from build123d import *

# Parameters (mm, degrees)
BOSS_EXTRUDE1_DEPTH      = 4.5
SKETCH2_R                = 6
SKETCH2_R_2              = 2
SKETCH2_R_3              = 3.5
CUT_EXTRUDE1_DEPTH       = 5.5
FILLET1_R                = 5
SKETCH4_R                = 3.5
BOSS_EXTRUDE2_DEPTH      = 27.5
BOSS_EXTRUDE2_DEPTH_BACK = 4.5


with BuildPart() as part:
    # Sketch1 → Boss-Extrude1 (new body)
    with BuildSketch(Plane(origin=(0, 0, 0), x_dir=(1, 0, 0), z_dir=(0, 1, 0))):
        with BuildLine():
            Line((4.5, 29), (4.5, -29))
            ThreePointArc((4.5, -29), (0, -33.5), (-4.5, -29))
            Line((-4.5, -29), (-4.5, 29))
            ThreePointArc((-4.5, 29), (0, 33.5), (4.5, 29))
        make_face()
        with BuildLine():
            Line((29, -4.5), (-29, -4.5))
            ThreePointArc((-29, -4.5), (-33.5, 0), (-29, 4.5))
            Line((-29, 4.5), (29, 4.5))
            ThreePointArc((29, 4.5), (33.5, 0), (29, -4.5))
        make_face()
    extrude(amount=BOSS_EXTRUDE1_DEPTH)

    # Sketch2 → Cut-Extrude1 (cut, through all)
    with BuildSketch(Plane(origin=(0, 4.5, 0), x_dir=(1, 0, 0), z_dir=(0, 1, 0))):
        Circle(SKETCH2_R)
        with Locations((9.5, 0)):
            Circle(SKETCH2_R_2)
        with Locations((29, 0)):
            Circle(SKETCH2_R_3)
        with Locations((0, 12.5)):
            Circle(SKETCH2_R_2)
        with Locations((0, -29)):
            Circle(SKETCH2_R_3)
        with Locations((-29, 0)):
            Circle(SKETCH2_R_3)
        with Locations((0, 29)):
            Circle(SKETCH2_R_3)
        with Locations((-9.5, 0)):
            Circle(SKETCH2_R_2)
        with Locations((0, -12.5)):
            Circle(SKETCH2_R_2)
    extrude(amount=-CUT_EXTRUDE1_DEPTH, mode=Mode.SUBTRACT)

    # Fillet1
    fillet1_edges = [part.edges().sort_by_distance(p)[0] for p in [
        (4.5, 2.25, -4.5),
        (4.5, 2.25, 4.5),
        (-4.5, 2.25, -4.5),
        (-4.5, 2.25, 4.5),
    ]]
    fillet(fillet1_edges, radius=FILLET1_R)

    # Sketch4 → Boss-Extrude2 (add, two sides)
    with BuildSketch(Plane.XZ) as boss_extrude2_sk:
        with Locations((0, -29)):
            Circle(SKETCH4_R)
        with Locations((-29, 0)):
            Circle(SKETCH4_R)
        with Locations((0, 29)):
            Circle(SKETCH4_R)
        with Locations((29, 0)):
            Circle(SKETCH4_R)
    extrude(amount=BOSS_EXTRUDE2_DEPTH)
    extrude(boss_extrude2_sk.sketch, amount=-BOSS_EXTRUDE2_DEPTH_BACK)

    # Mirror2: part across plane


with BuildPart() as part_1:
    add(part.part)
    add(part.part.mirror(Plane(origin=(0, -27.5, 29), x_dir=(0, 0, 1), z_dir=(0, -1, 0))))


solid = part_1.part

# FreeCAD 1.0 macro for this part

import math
import FreeCAD as App
import Part
import Sketcher

V = App.Vector


def edges_at(feature, points):
    """Names of the edges that pass closest to the given points."""
    edges = feature.Shape.Edges
    near = lambda p: min(range(len(edges)), key=lambda i: edges[i].distToShape(Part.Vertex(*p))[0])
    return sorted({f"Edge{near(p) + 1}" for p in points})

doc = App.newDocument("Part")
body = doc.addObject("PartDesign::Body", "Body")

sketch1 = body.newObject("Sketcher::SketchObject", "Sketch")
sketch1.AttachmentSupport = (doc.getObject("XZ_Plane"), [""])
sketch1.MapMode = "FlatFace"
sketch1.addGeometry(Part.ArcOfCircle(Part.Circle(V(0, -29, 0), V(0, 0, 1), 4.5), math.radians(180), math.radians(360)), False)
sketch1.addGeometry(Part.LineSegment(V(-4.5, -29, 0), V(-4.5, -4.5, 0)), False)
sketch1.addGeometry(Part.LineSegment(V(-4.5, -4.5, 0), V(-29, -4.5, 0)), False)
sketch1.addGeometry(Part.ArcOfCircle(Part.Circle(V(-29, 0, 0), V(0, 0, 1), 4.5), math.radians(90), math.radians(270)), False)
sketch1.addGeometry(Part.LineSegment(V(-29, 4.5, 0), V(-4.5, 4.5, 0)), False)
sketch1.addGeometry(Part.LineSegment(V(-4.5, 4.5, 0), V(-4.5, 29, 0)), False)
sketch1.addGeometry(Part.ArcOfCircle(Part.Circle(V(0, 29, 0), V(0, 0, 1), 4.5), math.radians(0), math.radians(180)), False)
sketch1.addGeometry(Part.LineSegment(V(4.5, 29, 0), V(4.5, 4.5, 0)), False)
sketch1.addGeometry(Part.LineSegment(V(4.5, 4.5, 0), V(29, 4.5, 0)), False)
sketch1.addGeometry(Part.ArcOfCircle(Part.Circle(V(29, 0, 0), V(0, 0, 1), 4.5), math.radians(-90), math.radians(90)), False)
sketch1.addGeometry(Part.LineSegment(V(29, -4.5, 0), V(4.5, -4.5, 0)), False)
sketch1.addGeometry(Part.LineSegment(V(4.5, -4.5, 0), V(4.5, -29, 0)), False)
sketch1.addConstraint(Sketcher.Constraint("Tangent", 0, 1, 1, 1))
sketch1.addConstraint(Sketcher.Constraint("Coincident", 1, 2, 2, 1))
sketch1.addConstraint(Sketcher.Constraint("Tangent", 2, 2, 3, 2))
sketch1.addConstraint(Sketcher.Constraint("Tangent", 3, 1, 4, 1))
sketch1.addConstraint(Sketcher.Constraint("Coincident", 4, 2, 5, 1))
sketch1.addConstraint(Sketcher.Constraint("Tangent", 5, 2, 6, 2))
sketch1.addConstraint(Sketcher.Constraint("Tangent", 6, 1, 7, 1))
sketch1.addConstraint(Sketcher.Constraint("Coincident", 7, 2, 8, 1))
sketch1.addConstraint(Sketcher.Constraint("Tangent", 8, 2, 9, 2))
sketch1.addConstraint(Sketcher.Constraint("Tangent", 9, 1, 10, 1))
sketch1.addConstraint(Sketcher.Constraint("Coincident", 10, 2, 11, 1))
sketch1.addConstraint(Sketcher.Constraint("Tangent", 11, 2, 0, 2))
sketch1.addConstraint(Sketcher.Constraint("Vertical", 1))
sketch1.addConstraint(Sketcher.Constraint("Horizontal", 2))
sketch1.addConstraint(Sketcher.Constraint("Horizontal", 4))
sketch1.addConstraint(Sketcher.Constraint("Vertical", 5))
sketch1.addConstraint(Sketcher.Constraint("Vertical", 7))
sketch1.addConstraint(Sketcher.Constraint("Horizontal", 8))
sketch1.addConstraint(Sketcher.Constraint("Horizontal", 10))
sketch1.addConstraint(Sketcher.Constraint("Vertical", 11))
sketch1.addConstraint(Sketcher.Constraint("Equal", 0, 3))
sketch1.addConstraint(Sketcher.Constraint("Equal", 3, 6))
sketch1.addConstraint(Sketcher.Constraint("Equal", 6, 9))
sketch1.addConstraint(Sketcher.Constraint("Symmetric", 0, 3, 6, 3, -1, 1))
sketch1.addConstraint(Sketcher.Constraint("Symmetric", 3, 3, 9, 3, -1, 1))
sketch1.addConstraint(Sketcher.Constraint("Symmetric", 4, 2, 7, 2, -2))
sketch1.addConstraint(Sketcher.Constraint("Equal", 10, 1))
sketch1.addConstraint(Sketcher.Constraint("Radius", 0, 4.5))
sketch1.addConstraint(Sketcher.Constraint("DistanceX", 2, 2, 2, 1, 24.5))
pad1 = body.newObject("PartDesign::Pad", "Pad")
pad1.Profile = sketch1
pad1.Length = 4.5
pad1.Reversed = True

sketch2 = body.newObject("Sketcher::SketchObject", "Sketch001")
sketch2.AttachmentSupport = (doc.getObject("XZ_Plane"), [""])
sketch2.MapMode = "FlatFace"
sketch2.AttachmentOffset = App.Placement(V(0, 0, -4.5), App.Rotation())
sketch2.addGeometry(Part.Circle(V(0, 0, 0), V(0, 0, 1), 6), False)
sketch2.addGeometry(Part.Circle(V(9.5, 0, 0), V(0, 0, 1), 2), False)
sketch2.addGeometry(Part.Circle(V(29, 0, 0), V(0, 0, 1), 3.5), False)
sketch2.addGeometry(Part.Circle(V(0, -12.5, 0), V(0, 0, 1), 2), False)
sketch2.addGeometry(Part.Circle(V(0, 29, 0), V(0, 0, 1), 3.5), False)
sketch2.addGeometry(Part.Circle(V(-29, 0, 0), V(0, 0, 1), 3.5), False)
sketch2.addGeometry(Part.Circle(V(0, -29, 0), V(0, 0, 1), 3.5), False)
sketch2.addGeometry(Part.Circle(V(-9.5, 0, 0), V(0, 0, 1), 2), False)
sketch2.addGeometry(Part.Circle(V(0, 12.5, 0), V(0, 0, 1), 2), False)
sketch2.addConstraint(Sketcher.Constraint("Coincident", 0, 3, -1, 1))
sketch2.addConstraint(Sketcher.Constraint("Equal", 1, 3))
sketch2.addConstraint(Sketcher.Constraint("Equal", 2, 4))
sketch2.addConstraint(Sketcher.Constraint("Equal", 4, 5))
sketch2.addConstraint(Sketcher.Constraint("Equal", 5, 6))
sketch2.addConstraint(Sketcher.Constraint("Equal", 3, 7))
sketch2.addConstraint(Sketcher.Constraint("Equal", 7, 8))
sketch2.addConstraint(Sketcher.Constraint("Symmetric", 2, 3, 5, 3, -1, 1))
sketch2.addConstraint(Sketcher.Constraint("Symmetric", 4, 3, 6, 3, -1, 1))
sketch2.addConstraint(Sketcher.Constraint("Symmetric", 1, 3, 7, 3, -1, 1))
sketch2.addConstraint(Sketcher.Constraint("Symmetric", 3, 3, 8, 3, -1, 1))
sketch2.addConstraint(Sketcher.Constraint("PointOnObject", 1, 3, -1))
sketch2.addConstraint(Sketcher.Constraint("PointOnObject", 2, 3, -1))
sketch2.addConstraint(Sketcher.Constraint("PointOnObject", 3, 3, -2))
sketch2.addConstraint(Sketcher.Constraint("PointOnObject", 4, 3, -2))
sketch2.addConstraint(Sketcher.Constraint("Diameter", 0, 12.0))
sketch2.addConstraint(Sketcher.Constraint("Diameter", 1, 4.0))
sketch2.addConstraint(Sketcher.Constraint("Diameter", 2, 7.0))
sketch2.addConstraint(Sketcher.Constraint("DistanceX", -1, 1, 2, 3, 29.0))
sketch2.addConstraint(Sketcher.Constraint("DistanceY", -1, 1, 4, 3, 29.0))
sketch2.addConstraint(Sketcher.Constraint("DistanceX", 7, 3, 1, 3, 19.0))
sketch2.addConstraint(Sketcher.Constraint("DistanceY", 3, 3, 8, 3, 25.0))
pocket1 = body.newObject("PartDesign::Pocket", "Pocket")
pocket1.Profile = sketch2
pocket1.Type = "ThroughAll"
pocket1.Reversed = True
doc.recompute()

fillet = body.newObject("PartDesign::Fillet", "Fillet")
fillet.Base = (pocket1, edges_at(pocket1, [
    (4.5, 2.25, -4.5),
    (4.5, 2.25, 4.5),
    (-4.5, 2.25, -4.5),
    (-4.5, 2.25, 4.5),
]))
fillet.Radius = 5

sketch3 = body.newObject("Sketcher::SketchObject", "Sketch002")
sketch3.AttachmentSupport = (doc.getObject("XZ_Plane"), [""])
sketch3.MapMode = "FlatFace"
sketch3.addGeometry(Part.Circle(V(0, -29, 0), V(0, 0, 1), 3.5), False)
sketch3.addGeometry(Part.Circle(V(-29, 0, 0), V(0, 0, 1), 3.5), False)
sketch3.addGeometry(Part.Circle(V(0, 29, 0), V(0, 0, 1), 3.5), False)
sketch3.addGeometry(Part.Circle(V(29, 0, 0), V(0, 0, 1), 3.5), False)
sketch3.addConstraint(Sketcher.Constraint("Equal", 0, 1))
sketch3.addConstraint(Sketcher.Constraint("Equal", 1, 2))
sketch3.addConstraint(Sketcher.Constraint("Equal", 2, 3))
sketch3.addConstraint(Sketcher.Constraint("Symmetric", 0, 3, 2, 3, -1, 1))
sketch3.addConstraint(Sketcher.Constraint("Symmetric", 1, 3, 3, 3, -1, 1))
sketch3.addConstraint(Sketcher.Constraint("PointOnObject", 0, 3, -2))
sketch3.addConstraint(Sketcher.Constraint("PointOnObject", 1, 3, -1))
sketch3.addConstraint(Sketcher.Constraint("Diameter", 0, 7.0))
sketch3.addConstraint(Sketcher.Constraint("DistanceY", 0, 3, -1, 1, 29.0))
sketch3.addConstraint(Sketcher.Constraint("DistanceX", 1, 3, -1, 1, 29.0))
pad2 = body.newObject("PartDesign::Pad", "Pad001")
pad2.Profile = sketch3
pad2.Type = "TwoLengths"
pad2.Length = 27.5
pad2.Length2 = 4.5
body2 = doc.addObject("PartDesign::Body", "Body001")
doc.recompute()

body2.BaseFeature = body
doc.recompute()

mirroring = doc.addObject("Part::Mirroring", "Mirroring")
mirroring.Source = body
mirroring.Base = V(0, -27.5, 29)
mirroring.Normal = V(0, -1, 0)
body3 = doc.addObject("PartDesign::Body", "Body002")
body3.BaseFeature = mirroring
boolean = body2.newObject("PartDesign::Boolean", "Boolean")
boolean.Type = "Fuse"
boolean.addObjects([body3])
doc.recompute()
mirroring.Visibility = False

doc.recompute()
